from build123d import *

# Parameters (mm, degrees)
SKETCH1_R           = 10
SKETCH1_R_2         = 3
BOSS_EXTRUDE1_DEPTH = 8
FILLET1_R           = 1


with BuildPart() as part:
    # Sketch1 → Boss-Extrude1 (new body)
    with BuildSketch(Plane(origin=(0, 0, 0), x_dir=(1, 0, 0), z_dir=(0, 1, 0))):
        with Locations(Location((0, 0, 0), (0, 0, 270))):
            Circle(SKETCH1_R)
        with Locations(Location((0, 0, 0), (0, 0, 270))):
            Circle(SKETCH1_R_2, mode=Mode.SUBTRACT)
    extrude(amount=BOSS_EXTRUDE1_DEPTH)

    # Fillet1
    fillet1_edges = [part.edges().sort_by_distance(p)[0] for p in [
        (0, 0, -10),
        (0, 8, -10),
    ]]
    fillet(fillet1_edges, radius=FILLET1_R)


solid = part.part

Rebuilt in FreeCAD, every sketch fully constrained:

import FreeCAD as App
import Part
import Sketcher
Q = App.Units.Quantity


def edges_at(feature, points):
    """Names of the edges that pass closest to the given points."""
    edges = feature.Shape.Edges
    near = lambda p: min(range(len(edges)), key=lambda i: edges[i].distToShape(Part.Vertex(*p))[0])
    return sorted({f"Edge{near(p) + 1}" for p in points})

doc = App.newDocument("Part")
params = doc.addObject("Spreadsheet::Sheet", "Params")
for row, (alias, value) in enumerate([
    ("sketch1_diameter", "20 mm"),
    ("sketch1_diameter2", "6 mm"),
    ("pad1_length", "8 mm"),
    ("fillet_radius", "1 mm"),
], start=1):
    params.set(f"A{row}", alias)
    params.set(f"B{row}", "=" + value)
    params.setAlias(f"B{row}", alias)

body = doc.addObject("PartDesign::Body", "Body")

sketch1 = doc.addObject("Sketcher::SketchObject", "Sketch")
body.addObject(sketch1)
sketch1.AttachmentSupport = (doc.XZ_Plane, [""])
sketch1.MapMode = "FlatFace"
sketch1.addGeometry([
    Part.Circle(App.Vector(0, 0, 0), App.Vector(0, 0, 1), 10),
    Part.Circle(App.Vector(0, 0, 0), App.Vector(0, 0, 1), 3),
], False)
sketch1.addConstraint([
    Sketcher.Constraint("Coincident", 0, 3, -1, 1),
    Sketcher.Constraint("Coincident", 1, 3, -1, 1),
    Sketcher.Constraint("Diameter", 0, Q("20 mm")),
    Sketcher.Constraint("Diameter", 1, Q("6 mm")),
])
sketch1.setExpression("Constraints[2]", "Params.sketch1_diameter")
sketch1.setExpression("Constraints[3]", "Params.sketch1_diameter2")
pad1 = doc.addObject("PartDesign::Pad", "Pad")
body.addObject(pad1)
pad1.Profile = sketch1
pad1.setExpression("Length", "Params.pad1_length")
pad1.Reversed = True
doc.recompute()

fillet = doc.addObject("PartDesign::Fillet", "Fillet")
body.addObject(fillet)
fillet.Base = (pad1, edges_at(pad1, [(0, 0, -10), (0, 8, -10)]))
fillet.setExpression("Radius", "Params.fillet_radius")

doc.recompute()
